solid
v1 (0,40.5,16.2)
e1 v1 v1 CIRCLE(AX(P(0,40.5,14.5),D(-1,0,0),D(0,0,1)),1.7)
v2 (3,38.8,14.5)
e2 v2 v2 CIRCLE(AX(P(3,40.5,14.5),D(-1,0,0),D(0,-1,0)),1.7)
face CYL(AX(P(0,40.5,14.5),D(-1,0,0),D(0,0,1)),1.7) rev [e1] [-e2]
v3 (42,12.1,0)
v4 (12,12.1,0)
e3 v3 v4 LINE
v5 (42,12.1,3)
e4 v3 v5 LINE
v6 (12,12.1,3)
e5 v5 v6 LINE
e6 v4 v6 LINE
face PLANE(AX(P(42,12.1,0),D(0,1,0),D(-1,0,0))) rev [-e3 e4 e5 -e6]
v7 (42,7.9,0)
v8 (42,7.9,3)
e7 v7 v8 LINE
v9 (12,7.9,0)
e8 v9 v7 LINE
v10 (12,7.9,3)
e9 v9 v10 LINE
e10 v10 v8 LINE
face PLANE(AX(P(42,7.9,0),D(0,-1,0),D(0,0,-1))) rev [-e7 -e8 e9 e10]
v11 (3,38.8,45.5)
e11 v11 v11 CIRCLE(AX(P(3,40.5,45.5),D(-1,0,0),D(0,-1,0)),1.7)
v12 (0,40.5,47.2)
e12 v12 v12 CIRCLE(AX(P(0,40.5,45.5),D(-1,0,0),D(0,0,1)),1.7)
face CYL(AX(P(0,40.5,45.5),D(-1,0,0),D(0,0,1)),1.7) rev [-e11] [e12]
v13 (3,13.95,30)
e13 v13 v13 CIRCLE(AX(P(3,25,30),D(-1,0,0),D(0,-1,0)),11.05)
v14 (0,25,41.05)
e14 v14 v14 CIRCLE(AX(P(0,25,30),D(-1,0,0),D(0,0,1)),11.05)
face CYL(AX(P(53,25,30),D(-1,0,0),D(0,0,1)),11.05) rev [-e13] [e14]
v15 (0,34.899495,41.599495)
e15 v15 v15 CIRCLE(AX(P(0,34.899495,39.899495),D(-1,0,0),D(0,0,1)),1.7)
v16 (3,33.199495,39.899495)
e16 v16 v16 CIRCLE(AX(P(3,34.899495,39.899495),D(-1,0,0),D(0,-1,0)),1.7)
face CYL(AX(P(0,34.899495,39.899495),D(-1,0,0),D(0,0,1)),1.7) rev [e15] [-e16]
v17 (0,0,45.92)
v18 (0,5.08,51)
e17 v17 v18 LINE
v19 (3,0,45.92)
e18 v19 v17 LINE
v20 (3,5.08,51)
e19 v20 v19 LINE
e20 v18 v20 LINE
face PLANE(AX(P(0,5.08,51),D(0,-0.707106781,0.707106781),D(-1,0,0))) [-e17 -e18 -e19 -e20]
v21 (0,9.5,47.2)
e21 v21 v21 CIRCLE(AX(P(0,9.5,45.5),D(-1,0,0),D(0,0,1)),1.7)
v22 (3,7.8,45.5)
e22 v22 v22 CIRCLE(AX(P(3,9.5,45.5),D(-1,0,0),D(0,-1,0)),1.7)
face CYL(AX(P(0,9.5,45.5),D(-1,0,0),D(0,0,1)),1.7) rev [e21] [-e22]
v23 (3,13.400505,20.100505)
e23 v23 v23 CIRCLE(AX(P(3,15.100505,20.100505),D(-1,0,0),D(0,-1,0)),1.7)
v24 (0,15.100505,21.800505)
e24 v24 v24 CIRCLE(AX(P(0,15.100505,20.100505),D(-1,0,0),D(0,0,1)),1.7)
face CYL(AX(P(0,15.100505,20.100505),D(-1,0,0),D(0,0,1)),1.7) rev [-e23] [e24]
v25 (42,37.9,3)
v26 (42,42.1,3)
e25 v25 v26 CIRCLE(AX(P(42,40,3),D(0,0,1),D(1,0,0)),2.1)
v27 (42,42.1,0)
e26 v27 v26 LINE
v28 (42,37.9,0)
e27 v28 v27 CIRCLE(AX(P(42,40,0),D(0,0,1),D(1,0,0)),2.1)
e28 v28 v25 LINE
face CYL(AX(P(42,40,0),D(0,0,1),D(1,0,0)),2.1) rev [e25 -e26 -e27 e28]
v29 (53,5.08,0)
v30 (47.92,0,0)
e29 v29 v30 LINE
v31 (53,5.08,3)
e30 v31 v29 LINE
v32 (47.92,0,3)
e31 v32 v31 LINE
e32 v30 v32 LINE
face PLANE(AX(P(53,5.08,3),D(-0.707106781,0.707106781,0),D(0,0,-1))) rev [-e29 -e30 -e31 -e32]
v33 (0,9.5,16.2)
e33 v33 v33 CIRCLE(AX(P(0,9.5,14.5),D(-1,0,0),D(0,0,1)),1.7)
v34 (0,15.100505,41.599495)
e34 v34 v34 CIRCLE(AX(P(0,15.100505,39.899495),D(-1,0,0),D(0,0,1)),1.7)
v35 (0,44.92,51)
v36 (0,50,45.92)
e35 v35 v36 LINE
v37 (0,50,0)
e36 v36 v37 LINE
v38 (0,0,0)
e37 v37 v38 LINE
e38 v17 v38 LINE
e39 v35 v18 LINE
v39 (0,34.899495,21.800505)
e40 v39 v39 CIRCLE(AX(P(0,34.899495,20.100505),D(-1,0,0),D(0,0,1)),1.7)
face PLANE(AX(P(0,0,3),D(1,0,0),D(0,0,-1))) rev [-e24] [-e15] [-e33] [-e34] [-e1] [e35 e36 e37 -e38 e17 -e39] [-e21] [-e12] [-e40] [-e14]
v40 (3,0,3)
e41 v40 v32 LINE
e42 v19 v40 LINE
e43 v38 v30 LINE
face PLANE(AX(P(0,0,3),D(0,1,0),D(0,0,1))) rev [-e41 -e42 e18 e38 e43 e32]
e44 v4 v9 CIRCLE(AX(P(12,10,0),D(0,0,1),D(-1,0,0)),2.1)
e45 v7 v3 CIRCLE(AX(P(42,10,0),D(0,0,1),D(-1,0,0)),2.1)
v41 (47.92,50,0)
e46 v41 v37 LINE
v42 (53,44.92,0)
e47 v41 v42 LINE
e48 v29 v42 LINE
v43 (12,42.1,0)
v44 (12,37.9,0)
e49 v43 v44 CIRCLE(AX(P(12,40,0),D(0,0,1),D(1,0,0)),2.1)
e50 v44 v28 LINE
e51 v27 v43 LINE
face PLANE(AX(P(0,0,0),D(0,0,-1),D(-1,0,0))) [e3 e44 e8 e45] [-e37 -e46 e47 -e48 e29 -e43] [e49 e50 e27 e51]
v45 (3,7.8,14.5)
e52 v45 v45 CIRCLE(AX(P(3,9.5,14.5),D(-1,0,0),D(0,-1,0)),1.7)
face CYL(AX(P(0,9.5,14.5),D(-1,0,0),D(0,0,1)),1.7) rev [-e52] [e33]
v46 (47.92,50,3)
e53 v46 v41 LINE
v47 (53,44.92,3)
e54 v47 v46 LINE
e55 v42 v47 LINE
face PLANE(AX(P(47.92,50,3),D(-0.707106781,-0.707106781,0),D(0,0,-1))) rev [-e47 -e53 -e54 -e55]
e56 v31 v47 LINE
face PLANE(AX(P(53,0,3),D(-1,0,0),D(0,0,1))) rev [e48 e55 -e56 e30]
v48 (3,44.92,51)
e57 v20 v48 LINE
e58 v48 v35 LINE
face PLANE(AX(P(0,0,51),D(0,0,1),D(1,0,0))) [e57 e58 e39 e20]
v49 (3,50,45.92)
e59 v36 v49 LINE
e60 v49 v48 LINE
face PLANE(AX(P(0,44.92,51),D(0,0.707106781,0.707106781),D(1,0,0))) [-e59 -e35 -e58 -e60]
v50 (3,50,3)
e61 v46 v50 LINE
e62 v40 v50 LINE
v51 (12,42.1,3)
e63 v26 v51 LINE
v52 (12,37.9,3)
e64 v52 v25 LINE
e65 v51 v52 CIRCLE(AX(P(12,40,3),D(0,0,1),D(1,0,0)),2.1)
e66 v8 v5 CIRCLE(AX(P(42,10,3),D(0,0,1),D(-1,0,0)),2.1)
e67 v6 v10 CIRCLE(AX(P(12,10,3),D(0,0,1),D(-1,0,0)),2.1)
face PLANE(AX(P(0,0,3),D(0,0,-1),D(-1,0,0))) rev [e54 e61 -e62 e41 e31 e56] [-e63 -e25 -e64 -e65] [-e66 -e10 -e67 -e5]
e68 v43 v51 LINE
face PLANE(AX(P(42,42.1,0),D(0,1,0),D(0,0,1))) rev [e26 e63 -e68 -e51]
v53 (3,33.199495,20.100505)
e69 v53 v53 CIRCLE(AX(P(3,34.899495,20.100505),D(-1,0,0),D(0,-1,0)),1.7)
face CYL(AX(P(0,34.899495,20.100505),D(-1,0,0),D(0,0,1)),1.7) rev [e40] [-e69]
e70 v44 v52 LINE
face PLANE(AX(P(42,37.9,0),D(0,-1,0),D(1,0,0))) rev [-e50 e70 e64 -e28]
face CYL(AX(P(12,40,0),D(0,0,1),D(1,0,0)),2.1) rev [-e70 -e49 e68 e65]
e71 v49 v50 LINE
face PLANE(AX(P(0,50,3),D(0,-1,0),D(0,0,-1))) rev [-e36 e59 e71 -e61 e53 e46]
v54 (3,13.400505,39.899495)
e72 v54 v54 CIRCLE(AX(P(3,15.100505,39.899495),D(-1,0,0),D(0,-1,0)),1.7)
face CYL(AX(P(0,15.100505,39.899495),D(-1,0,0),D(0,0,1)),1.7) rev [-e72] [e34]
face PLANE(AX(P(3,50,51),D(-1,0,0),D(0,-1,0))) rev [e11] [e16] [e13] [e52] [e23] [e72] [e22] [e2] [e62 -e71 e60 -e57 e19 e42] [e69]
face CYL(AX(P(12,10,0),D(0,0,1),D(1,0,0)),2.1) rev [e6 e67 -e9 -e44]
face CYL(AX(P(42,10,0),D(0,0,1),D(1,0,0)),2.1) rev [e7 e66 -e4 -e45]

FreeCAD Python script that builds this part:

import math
import FreeCAD as App
import Part
import Sketcher

V = App.Vector
Q = App.Units.Quantity


def edges_at(feature, points):
    """Names of the edges that pass closest to the given points."""
    edges = feature.Shape.Edges
    near = lambda p: min(range(len(edges)), key=lambda i: edges[i].distToShape(Part.Vertex(*p))[0])
    return sorted({f"Edge{near(p) + 1}" for p in points})

doc = App.newDocument("Part")
body = doc.addObject("PartDesign::Body", "Body")

# Sketch on XY plane
sketch1 = doc.addObject("Sketcher::SketchObject", "Sketch")
body.addObject(sketch1)
sketch1.AttachmentSupport = (doc.XY_Plane, [""])
sketch1.MapMode = "FlatFace"
sketch1.addGeometry([
    Part.LineSegment(V(0, 50, 0), V(0, 0, 0)),
    Part.LineSegment(V(0, 0, 0), V(53, 0, 0)),
    Part.LineSegment(V(53, 0, 0), V(53, 50, 0)),
    Part.LineSegment(V(53, 50, 0), V(0, 50, 0)),
], False)
sketch1.addConstraint([
    Sketcher.Constraint("Coincident", 0, 2, 1, 1),
    Sketcher.Constraint("Coincident", 1, 2, 2, 1),
    Sketcher.Constraint("Coincident", 2, 2, 3, 1),
    Sketcher.Constraint("Coincident", 3, 2, 0, 1),
    Sketcher.Constraint("Vertical", 0),
    Sketcher.Constraint("Horizontal", 1),
    Sketcher.Constraint("Vertical", 2),
    Sketcher.Constraint("Horizontal", 3),
    Sketcher.Constraint("Coincident", 0, 2, -1, 1),
    Sketcher.Constraint("DistanceX", 1, 1, 1, 2, Q("53 mm")),
    Sketcher.Constraint("DistanceY", 0, 2, 0, 1, Q("50 mm")),
])
pad1 = doc.addObject("PartDesign::Pad", "Pad")
body.addObject(pad1)
pad1.Profile = sketch1
pad1.Length = 3

# Sketch on XY plane
sketch2 = doc.addObject("Sketcher::SketchObject", "Sketch001")
body.addObject(sketch2)
sketch2.AttachmentSupport = (doc.XY_Plane, [""])
sketch2.MapMode = "FlatFace"
sketch2.AttachmentOffset = App.Placement(V(0, 0, 3), App.Rotation())
sketch2.addGeometry([
    Part.LineSegment(V(12, 37.9, 0), V(42, 37.9, 0)),  # 0
    Part.ArcOfCircle(Part.Circle(V(42, 40, 0), V(0, 0, 1), 2.1), math.radians(-90), math.radians(90)),  # 1
    Part.LineSegment(V(42, 42.1, 0), V(12, 42.1, 0)),  # 2
    Part.ArcOfCircle(Part.Circle(V(12, 40, 0), V(0, 0, 1), 2.1), math.radians(90), math.radians(270)),  # 3
    Part.LineSegment(V(42, 12.1, 0), V(12, 12.1, 0)),  # 4
    Part.ArcOfCircle(Part.Circle(V(12, 10, 0), V(0, 0, 1), 2.1), math.radians(90), math.radians(270)),  # 5
    Part.LineSegment(V(12, 7.9, 0), V(42, 7.9, 0)),  # 6
    Part.ArcOfCircle(Part.Circle(V(42, 10, 0), V(0, 0, 1), 2.1), math.radians(-90), math.radians(90)),  # 7
], False)
sketch2.addConstraint([
    Sketcher.Constraint("Tangent", 0, 2, 1, 1),
    Sketcher.Constraint("Tangent", 1, 2, 2, 1),
    Sketcher.Constraint("Tangent", 2, 2, 3, 1),
    Sketcher.Constraint("Tangent", 3, 2, 0, 1),
    Sketcher.Constraint("Tangent", 4, 2, 5, 1),
    Sketcher.Constraint("Tangent", 5, 2, 6, 1),
    Sketcher.Constraint("Tangent", 6, 2, 7, 1),
    Sketcher.Constraint("Tangent", 7, 2, 4, 1),
    Sketcher.Constraint("Horizontal", 0),
    Sketcher.Constraint("Horizontal", 2),
    Sketcher.Constraint("Horizontal", 4),
    Sketcher.Constraint("Horizontal", 6),
    Sketcher.Constraint("Equal", 3, 5),
    Sketcher.Constraint("Vertical", 3, 3, 5, 3),
    Sketcher.Constraint("Vertical", 1, 3, 7, 3),
    Sketcher.Constraint("Radius", 1, Q("2.1 mm")),
    Sketcher.Constraint("DistanceX", 0, 1, 0, 2, Q("30 mm")),
    Sketcher.Constraint("DistanceX", -1, 1, 1, 3, Q("42 mm")),
    Sketcher.Constraint("DistanceY", -1, 1, 1, 3, Q("40 mm")),
    Sketcher.Constraint("DistanceY", -1, 1, 5, 3, Q("10 mm")),
])
pocket1 = doc.addObject("PartDesign::Pocket", "Pocket")
body.addObject(pocket1)
pocket1.Profile = sketch2
pocket1.Type = "ThroughAll"

# Sketch on XY plane
sketch3 = doc.addObject("Sketcher::SketchObject", "Sketch002")
body.addObject(sketch3)
sketch3.AttachmentSupport = (doc.XY_Plane, [""])
sketch3.MapMode = "FlatFace"
sketch3.AttachmentOffset = App.Placement(V(0, 0, 3), App.Rotation())
sketch3.addGeometry([
    Part.LineSegment(V(0, 50, 0), V(0, 0, 0)),
    Part.LineSegment(V(0, 0, 0), V(3, 0, 0)),
    Part.LineSegment(V(3, 0, 0), V(3, 50, 0)),
    Part.LineSegment(V(3, 50, 0), V(0, 50, 0)),
], False)
sketch3.addConstraint([
    Sketcher.Constraint("Coincident", 0, 2, 1, 1),
    Sketcher.Constraint("Coincident", 1, 2, 2, 1),
    Sketcher.Constraint("Coincident", 2, 2, 3, 1),
    Sketcher.Constraint("Coincident", 3, 2, 0, 1),
    Sketcher.Constraint("Vertical", 0),
    Sketcher.Constraint("Horizontal", 1),
    Sketcher.Constraint("Vertical", 2),
    Sketcher.Constraint("Horizontal", 3),
    Sketcher.Constraint("Coincident", 0, 2, -1, 1),
    Sketcher.Constraint("DistanceX", 1, 1, 1, 2, Q("3 mm")),
    Sketcher.Constraint("DistanceY", 0, 2, 0, 1, Q("50 mm")),
])
pad2 = doc.addObject("PartDesign::Pad", "Pad001")
body.addObject(pad2)
pad2.Profile = sketch3
pad2.Length = 48

# Sketch on YZ plane
sketch4 = doc.addObject("Sketcher::SketchObject", "Sketch003")
body.addObject(sketch4)
sketch4.AttachmentSupport = (doc.YZ_Plane, [""])
sketch4.MapMode = "FlatFace"
sketch4.addGeometry(Part.Circle(V(25, 30, 0), V(0, 0, 1), 11), False)
sketch4.addConstraint([
    Sketcher.Constraint("Diameter", 0, Q("22.1 mm")),
    Sketcher.Constraint("DistanceX", -1, 1, 0, 3, Q("25 mm")),
    Sketcher.Constraint("DistanceY", -1, 1, 0, 3, Q("30 mm")),
])
pocket2 = doc.addObject("PartDesign::Pocket", "Pocket001")
body.addObject(pocket2)
pocket2.Profile = sketch4
pocket2.Type = "ThroughAll"
pocket2.Reversed = True

# Sketch on YZ plane
sketch5 = doc.addObject("Sketcher::SketchObject", "Sketch004")
body.addObject(sketch5)
sketch5.AttachmentSupport = (doc.YZ_Plane, [""])
sketch5.MapMode = "FlatFace"
sketch5.addGeometry([
    Part.Circle(V(9.5, 45.5, 0), V(0, 0, 1), 1.7),
    Part.Circle(V(40.5, 14.5, 0), V(0, 0, 1), 1.7),
    Part.Circle(V(9.5, 14.5, 0), V(0, 0, 1), 1.7),
    Part.Circle(V(40.5, 45.5, 0), V(0, 0, 1), 1.7),
], False)
sketch5.addConstraint([
    Sketcher.Constraint("Equal", 0, 1),
    Sketcher.Constraint("Equal", 1, 2),
    Sketcher.Constraint("Equal", 2, 3),
    Sketcher.Constraint("Horizontal", 1, 3, 2, 3),
    Sketcher.Constraint("Horizontal", 0, 3, 3, 3),
    Sketcher.Constraint("Vertical", 0, 3, 2, 3),
    Sketcher.Constraint("Vertical", 1, 3, 3, 3),
    Sketcher.Constraint("Diameter", 0, Q("3.4 mm")),
    Sketcher.Constraint("DistanceX", 0, 3, 1, 3, Q("31 mm")),
    Sketcher.Constraint("DistanceY", 1, 3, 0, 3, Q("31 mm")),
    Sketcher.Constraint("DistanceX", -1, 1, 0, 3, Q("9.5 mm")),
    Sketcher.Constraint("DistanceY", -1, 1, 0, 3, Q("45.5 mm")),
])
doc.recompute()
hole = doc.addObject("PartDesign::Hole", "Hole")
body.addObject(hole)
hole.Profile = sketch5
hole.ThreadType = "None"
hole.Diameter = 3.4
hole.DepthType = "ThroughAll"
hole.Reversed = True

# Sketch on YZ plane
sketch6 = doc.addObject("Sketcher::SketchObject", "Sketch005")
body.addObject(sketch6)
sketch6.AttachmentSupport = (doc.YZ_Plane, [""])
sketch6.MapMode = "FlatFace"
sketch6.addGeometry([
    Part.Circle(V(34.9, 39.9, 0), V(0, 0, 1), 1.7),
    Part.Circle(V(15.1, 39.9, 0), V(0, 0, 1), 1.7),
    Part.Circle(V(34.9, 20.1, 0), V(0, 0, 1), 1.7),
    Part.Circle(V(15.1, 20.1, 0), V(0, 0, 1), 1.7),
], False)
sketch6.addConstraint([
    Sketcher.Constraint("Equal", 0, 1),
    Sketcher.Constraint("Equal", 1, 2),
    Sketcher.Constraint("Equal", 2, 3),
    Sketcher.Constraint("Horizontal", 0, 3, 1, 3),
    Sketcher.Constraint("Horizontal", 2, 3, 3, 3),
    Sketcher.Constraint("Vertical", 0, 3, 2, 3),
    Sketcher.Constraint("Vertical", 1, 3, 3, 3),
    Sketcher.Constraint("Diameter", 0, Q("3.4 mm")),
    Sketcher.Constraint("DistanceX", 1, 3, 0, 3, Q("19.79899 mm")),
    Sketcher.Constraint("DistanceY", 2, 3, 0, 3, Q("19.79899 mm")),
    Sketcher.Constraint("DistanceX", -1, 1, 0, 3, Q("34.899495 mm")),
    Sketcher.Constraint("DistanceY", -1, 1, 0, 3, Q("39.899495 mm")),
])
doc.recompute()
hole2 = doc.addObject("PartDesign::Hole", "Hole001")
body.addObject(hole2)
hole2.Profile = sketch6
hole2.ThreadType = "None"
hole2.Diameter = 3.4
hole2.DepthType = "ThroughAll"
hole2.Reversed = True
doc.recompute()

chamfer = doc.addObject("PartDesign::Chamfer", "Chamfer")
body.addObject(chamfer)
chamfer.Base = (hole2, edges_at(hole2, [
    (1.5, 0, 51),
    (1.5, 50, 51),
    (53, 50, 1.5),
    (53, 0, 1.5),
]))
chamfer.Size = 5.08

doc.recompute()
